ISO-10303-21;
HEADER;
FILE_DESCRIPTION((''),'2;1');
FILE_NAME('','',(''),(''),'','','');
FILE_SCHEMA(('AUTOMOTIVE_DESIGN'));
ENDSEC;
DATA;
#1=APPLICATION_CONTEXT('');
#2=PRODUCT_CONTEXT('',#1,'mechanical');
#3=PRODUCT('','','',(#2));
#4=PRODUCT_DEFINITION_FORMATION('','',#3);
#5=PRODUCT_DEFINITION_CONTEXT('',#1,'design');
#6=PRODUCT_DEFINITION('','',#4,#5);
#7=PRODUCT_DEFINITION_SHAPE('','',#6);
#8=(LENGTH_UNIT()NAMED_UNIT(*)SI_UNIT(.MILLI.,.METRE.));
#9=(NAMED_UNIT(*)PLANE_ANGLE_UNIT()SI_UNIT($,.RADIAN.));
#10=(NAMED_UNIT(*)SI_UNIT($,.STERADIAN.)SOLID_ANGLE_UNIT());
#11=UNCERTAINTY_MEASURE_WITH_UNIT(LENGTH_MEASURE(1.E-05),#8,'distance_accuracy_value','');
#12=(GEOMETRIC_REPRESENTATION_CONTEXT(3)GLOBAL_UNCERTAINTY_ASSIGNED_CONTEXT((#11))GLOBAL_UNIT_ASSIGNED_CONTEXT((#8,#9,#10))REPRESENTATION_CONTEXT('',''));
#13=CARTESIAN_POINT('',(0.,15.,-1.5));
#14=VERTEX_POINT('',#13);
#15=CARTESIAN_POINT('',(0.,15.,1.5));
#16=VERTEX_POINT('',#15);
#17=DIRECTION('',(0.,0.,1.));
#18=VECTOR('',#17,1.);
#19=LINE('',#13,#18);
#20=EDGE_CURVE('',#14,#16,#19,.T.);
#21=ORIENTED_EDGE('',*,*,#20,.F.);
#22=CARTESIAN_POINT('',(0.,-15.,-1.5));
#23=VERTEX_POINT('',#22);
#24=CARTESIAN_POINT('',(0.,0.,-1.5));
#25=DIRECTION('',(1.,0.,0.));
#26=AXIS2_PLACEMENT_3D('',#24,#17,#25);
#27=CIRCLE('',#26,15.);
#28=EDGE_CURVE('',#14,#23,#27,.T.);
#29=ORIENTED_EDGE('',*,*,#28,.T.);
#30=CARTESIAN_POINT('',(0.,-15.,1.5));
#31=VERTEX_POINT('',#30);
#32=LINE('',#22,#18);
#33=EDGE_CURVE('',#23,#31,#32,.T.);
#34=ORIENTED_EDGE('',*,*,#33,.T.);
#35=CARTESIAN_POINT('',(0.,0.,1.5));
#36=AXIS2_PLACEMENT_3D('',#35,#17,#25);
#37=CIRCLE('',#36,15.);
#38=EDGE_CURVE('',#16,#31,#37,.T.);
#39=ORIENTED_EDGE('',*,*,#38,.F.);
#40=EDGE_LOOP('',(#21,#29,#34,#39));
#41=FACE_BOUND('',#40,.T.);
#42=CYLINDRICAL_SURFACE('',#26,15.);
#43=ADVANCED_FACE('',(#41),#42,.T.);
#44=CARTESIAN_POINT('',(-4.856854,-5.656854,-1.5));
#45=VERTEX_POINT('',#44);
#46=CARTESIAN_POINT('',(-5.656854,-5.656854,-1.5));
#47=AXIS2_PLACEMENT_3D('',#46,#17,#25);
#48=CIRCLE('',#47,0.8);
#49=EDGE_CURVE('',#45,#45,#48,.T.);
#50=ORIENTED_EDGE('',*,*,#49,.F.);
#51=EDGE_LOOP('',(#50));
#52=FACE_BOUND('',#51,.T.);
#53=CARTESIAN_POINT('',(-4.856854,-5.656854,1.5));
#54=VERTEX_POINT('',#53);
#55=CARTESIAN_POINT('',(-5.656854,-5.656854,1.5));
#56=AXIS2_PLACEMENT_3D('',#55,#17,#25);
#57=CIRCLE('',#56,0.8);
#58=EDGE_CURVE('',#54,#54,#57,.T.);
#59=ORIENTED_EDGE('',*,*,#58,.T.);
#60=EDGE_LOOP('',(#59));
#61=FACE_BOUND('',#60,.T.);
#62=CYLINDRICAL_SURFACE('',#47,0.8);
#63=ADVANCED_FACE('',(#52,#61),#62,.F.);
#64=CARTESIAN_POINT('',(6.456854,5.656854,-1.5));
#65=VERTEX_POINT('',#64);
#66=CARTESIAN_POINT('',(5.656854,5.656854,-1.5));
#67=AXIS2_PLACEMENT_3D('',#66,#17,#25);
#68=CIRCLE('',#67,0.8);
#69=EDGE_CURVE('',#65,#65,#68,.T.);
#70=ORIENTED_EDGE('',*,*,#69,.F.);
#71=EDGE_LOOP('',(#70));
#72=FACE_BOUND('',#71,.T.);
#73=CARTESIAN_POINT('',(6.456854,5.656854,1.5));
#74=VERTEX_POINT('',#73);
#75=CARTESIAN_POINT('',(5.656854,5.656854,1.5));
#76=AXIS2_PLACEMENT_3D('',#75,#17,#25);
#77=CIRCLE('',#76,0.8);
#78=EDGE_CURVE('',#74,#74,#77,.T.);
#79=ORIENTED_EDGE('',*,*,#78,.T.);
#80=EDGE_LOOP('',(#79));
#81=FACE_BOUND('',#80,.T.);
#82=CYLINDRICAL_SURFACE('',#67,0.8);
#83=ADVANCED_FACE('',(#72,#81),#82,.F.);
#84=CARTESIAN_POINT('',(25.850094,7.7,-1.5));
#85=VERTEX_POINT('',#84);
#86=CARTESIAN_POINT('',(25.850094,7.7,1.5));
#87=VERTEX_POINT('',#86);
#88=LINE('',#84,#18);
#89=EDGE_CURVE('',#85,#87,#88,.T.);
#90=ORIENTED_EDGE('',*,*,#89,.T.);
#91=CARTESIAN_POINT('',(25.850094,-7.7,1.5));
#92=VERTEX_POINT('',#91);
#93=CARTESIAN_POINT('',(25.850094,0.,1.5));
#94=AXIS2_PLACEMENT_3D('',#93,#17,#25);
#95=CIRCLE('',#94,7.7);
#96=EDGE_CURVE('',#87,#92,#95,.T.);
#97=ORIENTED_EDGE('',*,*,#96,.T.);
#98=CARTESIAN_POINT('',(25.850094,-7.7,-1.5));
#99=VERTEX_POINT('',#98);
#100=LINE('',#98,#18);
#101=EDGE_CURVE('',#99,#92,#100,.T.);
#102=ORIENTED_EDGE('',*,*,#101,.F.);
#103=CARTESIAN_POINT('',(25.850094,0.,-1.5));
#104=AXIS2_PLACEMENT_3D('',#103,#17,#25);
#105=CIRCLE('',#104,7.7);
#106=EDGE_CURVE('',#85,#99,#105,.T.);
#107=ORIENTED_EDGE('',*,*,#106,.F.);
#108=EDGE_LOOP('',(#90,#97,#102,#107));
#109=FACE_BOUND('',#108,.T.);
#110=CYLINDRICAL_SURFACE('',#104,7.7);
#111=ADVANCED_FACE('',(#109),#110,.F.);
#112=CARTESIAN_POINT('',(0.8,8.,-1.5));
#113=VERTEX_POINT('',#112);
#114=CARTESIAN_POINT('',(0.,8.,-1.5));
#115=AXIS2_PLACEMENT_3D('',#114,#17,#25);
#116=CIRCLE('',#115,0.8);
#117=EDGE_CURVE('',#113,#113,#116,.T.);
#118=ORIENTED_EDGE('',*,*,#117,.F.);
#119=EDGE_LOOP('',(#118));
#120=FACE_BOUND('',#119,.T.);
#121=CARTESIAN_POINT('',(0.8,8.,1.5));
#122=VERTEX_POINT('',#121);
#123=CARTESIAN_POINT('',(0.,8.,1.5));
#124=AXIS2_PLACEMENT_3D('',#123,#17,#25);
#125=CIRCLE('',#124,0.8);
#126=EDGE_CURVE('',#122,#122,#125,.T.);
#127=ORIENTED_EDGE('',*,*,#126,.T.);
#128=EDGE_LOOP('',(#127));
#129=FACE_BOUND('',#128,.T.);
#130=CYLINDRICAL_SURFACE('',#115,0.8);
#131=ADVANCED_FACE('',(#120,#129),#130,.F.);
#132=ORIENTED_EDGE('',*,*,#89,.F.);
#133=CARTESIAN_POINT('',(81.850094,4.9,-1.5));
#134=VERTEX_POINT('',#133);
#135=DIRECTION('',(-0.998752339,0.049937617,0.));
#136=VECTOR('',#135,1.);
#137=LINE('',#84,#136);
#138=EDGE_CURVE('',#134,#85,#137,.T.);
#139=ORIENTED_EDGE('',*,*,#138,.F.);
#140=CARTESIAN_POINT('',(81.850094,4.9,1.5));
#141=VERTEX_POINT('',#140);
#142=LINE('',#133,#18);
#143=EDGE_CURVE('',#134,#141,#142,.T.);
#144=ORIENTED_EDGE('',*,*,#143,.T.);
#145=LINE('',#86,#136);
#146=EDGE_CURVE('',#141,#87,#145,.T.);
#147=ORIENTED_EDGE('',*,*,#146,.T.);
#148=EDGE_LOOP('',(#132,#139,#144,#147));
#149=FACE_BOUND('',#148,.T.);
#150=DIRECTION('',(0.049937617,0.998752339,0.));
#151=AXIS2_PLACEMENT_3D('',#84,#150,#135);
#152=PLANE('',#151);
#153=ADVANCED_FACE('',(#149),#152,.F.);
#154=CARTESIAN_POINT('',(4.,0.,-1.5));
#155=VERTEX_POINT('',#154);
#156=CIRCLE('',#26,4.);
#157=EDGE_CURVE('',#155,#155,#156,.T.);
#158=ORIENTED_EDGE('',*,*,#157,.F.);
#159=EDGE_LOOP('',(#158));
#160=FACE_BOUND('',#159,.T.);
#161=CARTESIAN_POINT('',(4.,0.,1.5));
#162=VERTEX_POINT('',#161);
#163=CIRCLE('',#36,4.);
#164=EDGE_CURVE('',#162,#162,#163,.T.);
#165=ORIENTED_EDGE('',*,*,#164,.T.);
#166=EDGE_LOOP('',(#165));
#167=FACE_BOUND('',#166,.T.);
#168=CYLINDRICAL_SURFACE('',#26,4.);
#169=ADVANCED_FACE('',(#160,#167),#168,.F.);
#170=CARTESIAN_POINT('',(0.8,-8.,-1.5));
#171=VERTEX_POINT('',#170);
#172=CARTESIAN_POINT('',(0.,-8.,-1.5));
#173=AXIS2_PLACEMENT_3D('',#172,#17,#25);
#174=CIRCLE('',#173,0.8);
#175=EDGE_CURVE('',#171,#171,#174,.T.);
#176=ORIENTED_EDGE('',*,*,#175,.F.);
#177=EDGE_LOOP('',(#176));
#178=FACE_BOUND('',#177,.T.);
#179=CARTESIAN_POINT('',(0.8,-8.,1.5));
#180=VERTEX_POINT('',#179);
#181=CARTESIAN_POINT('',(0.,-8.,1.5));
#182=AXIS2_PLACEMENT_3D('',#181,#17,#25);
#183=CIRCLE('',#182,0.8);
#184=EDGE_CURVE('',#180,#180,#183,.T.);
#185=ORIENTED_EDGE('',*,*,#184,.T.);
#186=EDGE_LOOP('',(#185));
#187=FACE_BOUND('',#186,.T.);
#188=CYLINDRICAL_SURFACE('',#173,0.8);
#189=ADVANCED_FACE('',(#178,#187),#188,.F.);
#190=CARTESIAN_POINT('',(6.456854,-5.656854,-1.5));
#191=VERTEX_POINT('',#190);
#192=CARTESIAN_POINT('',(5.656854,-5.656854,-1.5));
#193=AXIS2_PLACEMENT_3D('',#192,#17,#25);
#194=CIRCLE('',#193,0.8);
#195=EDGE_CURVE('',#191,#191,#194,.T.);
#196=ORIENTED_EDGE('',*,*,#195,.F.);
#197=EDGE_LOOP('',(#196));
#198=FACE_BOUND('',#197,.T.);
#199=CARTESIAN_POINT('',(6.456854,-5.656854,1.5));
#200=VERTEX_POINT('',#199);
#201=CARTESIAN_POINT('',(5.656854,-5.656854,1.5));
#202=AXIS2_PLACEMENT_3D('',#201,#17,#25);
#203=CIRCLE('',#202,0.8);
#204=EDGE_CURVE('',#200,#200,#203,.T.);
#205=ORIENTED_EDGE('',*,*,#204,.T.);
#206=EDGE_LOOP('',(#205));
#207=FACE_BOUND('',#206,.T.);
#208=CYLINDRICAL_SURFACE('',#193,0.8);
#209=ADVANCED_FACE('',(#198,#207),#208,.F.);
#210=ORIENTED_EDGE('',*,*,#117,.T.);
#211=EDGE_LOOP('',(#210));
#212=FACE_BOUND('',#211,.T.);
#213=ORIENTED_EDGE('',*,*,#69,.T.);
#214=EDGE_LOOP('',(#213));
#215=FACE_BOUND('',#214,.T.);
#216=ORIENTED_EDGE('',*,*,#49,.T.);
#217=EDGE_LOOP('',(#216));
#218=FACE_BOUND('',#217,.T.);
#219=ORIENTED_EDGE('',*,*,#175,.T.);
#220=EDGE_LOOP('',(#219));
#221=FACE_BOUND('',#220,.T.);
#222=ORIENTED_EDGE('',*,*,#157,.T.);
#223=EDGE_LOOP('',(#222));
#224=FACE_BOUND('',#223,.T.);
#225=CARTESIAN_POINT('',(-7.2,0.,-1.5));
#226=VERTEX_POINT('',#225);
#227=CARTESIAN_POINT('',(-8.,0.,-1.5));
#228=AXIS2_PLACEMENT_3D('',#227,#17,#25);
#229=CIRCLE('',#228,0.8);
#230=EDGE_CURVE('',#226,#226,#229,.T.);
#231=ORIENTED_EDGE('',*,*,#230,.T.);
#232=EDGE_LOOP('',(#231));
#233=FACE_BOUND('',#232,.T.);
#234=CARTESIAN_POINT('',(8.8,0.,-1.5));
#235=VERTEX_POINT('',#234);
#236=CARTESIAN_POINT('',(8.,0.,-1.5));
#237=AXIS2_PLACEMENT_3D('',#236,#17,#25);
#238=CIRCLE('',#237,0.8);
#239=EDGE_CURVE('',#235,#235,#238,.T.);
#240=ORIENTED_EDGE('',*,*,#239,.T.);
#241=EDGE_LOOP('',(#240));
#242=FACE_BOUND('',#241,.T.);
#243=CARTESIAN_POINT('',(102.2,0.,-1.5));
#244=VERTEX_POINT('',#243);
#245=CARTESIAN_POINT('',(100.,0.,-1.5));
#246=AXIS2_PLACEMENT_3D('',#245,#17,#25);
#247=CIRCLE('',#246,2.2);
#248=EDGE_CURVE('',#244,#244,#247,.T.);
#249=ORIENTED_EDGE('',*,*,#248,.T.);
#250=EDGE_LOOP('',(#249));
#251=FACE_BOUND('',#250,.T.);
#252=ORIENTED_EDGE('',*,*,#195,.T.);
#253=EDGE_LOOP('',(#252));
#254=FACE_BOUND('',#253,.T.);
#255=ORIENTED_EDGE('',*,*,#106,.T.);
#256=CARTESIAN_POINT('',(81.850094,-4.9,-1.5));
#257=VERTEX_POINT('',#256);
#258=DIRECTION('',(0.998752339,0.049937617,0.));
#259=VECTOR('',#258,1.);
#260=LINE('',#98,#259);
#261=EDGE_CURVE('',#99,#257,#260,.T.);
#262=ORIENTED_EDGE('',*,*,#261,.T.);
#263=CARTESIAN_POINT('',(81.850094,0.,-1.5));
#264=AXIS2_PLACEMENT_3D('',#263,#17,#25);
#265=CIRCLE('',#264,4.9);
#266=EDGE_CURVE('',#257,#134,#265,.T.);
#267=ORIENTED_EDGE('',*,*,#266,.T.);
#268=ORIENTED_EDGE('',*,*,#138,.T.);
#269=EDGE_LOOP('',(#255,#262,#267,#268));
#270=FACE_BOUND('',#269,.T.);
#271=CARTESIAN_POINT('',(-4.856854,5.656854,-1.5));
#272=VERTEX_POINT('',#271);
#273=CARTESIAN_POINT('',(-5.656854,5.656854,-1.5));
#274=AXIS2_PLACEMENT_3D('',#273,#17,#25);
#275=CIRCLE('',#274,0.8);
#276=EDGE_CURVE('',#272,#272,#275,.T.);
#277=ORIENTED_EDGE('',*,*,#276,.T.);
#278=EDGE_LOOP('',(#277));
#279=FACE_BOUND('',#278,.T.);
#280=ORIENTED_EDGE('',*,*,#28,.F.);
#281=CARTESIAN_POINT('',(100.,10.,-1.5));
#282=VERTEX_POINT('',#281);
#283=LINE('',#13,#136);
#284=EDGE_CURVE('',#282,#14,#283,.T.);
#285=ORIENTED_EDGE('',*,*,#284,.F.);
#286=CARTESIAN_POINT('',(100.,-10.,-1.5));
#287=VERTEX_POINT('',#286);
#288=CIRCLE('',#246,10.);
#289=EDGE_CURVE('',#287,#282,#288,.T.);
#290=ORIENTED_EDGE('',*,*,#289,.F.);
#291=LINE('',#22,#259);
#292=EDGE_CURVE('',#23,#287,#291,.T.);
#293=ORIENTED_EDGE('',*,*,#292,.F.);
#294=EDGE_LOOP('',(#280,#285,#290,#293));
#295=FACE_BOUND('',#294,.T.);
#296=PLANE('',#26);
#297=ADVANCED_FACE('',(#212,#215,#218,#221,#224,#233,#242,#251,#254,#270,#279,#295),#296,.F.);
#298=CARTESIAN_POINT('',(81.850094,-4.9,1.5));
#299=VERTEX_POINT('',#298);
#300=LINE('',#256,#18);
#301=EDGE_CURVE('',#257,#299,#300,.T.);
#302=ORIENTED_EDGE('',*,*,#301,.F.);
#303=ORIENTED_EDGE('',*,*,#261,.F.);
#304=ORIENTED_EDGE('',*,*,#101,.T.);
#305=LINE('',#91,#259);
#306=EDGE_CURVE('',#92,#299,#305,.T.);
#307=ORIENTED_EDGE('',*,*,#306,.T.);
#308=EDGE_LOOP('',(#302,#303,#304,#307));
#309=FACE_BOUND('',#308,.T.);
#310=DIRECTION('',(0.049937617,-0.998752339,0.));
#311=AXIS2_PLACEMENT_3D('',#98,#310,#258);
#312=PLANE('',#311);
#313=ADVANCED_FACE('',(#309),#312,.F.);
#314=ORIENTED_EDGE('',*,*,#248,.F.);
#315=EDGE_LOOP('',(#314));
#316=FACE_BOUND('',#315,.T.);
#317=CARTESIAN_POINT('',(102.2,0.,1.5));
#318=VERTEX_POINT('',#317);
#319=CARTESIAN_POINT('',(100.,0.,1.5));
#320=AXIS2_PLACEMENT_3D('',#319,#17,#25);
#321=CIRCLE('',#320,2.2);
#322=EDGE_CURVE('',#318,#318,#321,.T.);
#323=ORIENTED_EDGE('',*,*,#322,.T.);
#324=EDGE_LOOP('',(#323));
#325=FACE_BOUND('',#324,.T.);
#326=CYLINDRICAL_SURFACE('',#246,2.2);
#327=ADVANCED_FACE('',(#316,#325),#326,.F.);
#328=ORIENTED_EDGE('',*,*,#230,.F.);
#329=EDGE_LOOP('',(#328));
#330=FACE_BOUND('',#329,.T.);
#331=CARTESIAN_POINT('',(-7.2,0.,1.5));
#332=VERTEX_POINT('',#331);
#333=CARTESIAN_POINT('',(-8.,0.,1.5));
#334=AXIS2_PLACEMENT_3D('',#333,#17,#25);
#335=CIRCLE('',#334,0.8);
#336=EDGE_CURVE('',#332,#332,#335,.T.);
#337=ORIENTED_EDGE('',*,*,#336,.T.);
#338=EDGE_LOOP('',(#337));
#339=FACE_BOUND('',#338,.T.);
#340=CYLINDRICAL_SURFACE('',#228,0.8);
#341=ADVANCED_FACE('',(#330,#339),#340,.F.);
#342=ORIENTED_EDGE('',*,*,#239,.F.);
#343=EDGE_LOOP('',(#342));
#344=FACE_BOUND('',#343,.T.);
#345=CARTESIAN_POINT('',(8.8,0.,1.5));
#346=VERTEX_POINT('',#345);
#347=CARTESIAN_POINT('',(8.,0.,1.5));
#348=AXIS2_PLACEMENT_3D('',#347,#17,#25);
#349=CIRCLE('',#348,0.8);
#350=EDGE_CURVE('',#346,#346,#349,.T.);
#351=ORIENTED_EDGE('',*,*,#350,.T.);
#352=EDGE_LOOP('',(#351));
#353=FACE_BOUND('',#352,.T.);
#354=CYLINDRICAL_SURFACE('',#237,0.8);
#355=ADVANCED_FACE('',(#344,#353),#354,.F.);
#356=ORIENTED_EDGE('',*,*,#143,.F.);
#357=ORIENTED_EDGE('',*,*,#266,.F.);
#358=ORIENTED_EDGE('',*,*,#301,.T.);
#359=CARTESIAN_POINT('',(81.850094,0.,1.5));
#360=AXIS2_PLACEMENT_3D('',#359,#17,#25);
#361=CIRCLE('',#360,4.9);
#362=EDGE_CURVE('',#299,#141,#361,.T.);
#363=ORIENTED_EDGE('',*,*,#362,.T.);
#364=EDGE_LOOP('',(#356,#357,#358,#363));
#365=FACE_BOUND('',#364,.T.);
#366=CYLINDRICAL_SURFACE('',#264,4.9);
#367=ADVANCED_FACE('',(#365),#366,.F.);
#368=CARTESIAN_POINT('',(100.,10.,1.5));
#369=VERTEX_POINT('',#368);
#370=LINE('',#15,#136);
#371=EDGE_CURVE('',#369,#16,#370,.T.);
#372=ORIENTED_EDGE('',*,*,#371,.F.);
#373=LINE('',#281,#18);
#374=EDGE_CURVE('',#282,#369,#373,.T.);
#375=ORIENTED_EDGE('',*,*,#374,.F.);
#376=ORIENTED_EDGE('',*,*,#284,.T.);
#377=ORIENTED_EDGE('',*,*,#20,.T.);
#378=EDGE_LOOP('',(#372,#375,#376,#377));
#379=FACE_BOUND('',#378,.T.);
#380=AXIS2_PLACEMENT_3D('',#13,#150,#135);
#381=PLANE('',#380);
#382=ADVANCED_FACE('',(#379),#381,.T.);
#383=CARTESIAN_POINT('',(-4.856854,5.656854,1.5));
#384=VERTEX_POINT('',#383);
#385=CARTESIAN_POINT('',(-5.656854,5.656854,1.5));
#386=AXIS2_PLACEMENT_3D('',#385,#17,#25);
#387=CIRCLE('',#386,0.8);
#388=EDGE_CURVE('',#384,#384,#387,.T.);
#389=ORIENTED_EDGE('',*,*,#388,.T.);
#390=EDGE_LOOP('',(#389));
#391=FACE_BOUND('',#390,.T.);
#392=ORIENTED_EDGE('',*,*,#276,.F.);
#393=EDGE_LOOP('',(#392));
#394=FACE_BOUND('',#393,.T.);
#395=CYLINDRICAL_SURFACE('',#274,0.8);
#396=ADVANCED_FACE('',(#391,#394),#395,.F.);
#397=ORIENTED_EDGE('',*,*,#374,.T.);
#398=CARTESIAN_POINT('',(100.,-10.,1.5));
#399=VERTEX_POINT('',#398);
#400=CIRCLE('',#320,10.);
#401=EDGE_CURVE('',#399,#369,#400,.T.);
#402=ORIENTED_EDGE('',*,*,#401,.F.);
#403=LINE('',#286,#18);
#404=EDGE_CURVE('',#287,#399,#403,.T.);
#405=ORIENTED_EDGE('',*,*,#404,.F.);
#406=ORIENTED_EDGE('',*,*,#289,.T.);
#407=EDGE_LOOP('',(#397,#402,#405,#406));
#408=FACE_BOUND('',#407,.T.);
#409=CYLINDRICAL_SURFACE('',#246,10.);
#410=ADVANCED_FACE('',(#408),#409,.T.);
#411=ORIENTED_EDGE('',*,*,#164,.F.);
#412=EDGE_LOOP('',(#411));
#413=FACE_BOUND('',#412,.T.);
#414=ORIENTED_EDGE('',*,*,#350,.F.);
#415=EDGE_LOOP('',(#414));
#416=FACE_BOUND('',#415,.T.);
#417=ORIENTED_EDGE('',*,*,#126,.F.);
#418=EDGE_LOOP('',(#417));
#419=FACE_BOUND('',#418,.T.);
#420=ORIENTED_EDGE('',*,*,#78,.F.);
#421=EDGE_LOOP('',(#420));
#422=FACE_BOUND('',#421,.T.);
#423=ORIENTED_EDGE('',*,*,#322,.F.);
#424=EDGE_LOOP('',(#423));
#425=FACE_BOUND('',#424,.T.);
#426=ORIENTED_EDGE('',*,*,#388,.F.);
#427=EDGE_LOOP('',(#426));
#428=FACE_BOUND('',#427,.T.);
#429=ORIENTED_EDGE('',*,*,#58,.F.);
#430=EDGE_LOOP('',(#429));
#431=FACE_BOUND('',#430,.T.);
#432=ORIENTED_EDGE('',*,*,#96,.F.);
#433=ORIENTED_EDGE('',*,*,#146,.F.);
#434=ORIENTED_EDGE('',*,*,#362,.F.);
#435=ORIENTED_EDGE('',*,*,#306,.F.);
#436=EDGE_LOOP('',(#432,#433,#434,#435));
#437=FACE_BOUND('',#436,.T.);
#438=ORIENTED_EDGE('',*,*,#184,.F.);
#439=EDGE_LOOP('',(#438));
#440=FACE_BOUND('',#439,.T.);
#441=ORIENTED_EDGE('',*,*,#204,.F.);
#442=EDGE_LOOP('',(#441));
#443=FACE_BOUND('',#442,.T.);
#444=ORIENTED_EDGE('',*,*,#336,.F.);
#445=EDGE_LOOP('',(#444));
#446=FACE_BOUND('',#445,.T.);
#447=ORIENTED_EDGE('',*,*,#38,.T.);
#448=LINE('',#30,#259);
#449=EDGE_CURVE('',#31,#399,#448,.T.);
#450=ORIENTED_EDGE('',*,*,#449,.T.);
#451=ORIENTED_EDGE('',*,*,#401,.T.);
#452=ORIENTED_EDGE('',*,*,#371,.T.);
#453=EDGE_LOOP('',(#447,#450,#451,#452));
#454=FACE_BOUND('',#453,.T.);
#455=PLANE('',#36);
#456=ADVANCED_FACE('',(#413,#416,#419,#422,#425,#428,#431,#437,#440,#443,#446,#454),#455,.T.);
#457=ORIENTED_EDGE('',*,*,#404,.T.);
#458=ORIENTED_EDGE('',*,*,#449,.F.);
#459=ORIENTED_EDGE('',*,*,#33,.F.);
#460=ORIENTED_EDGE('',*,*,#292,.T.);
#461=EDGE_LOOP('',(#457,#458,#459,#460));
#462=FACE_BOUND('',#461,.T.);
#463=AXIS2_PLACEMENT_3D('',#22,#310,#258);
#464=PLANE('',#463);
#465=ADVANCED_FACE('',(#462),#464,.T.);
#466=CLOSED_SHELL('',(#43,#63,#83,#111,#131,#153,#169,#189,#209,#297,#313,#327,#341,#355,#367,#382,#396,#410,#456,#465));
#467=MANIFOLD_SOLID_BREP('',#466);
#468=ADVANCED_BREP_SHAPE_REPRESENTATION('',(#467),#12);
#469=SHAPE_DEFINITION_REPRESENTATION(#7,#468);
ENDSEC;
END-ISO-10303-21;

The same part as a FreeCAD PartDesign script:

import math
import FreeCAD as App
import Part
import Sketcher
Q = App.Units.Quantity

doc = App.newDocument("Part")
body = doc.addObject("PartDesign::Body", "Body")

sketch1 = body.newObject("Sketcher::SketchObject", "Sketch")
sketch1.AttachmentSupport = (doc.getObject("XY_Plane"), [""])
sketch1.MapMode = "FlatFace"
sketch1.addGeometry([
    Part.LineSegment(App.Vector(0, -15, 0), App.Vector(100, -10, 0)),
    Part.ArcOfCircle(Part.Circle(App.Vector(100, 0, 0), App.Vector(0, 0, 1), 10), math.radians(-90), math.radians(90)),
    Part.LineSegment(App.Vector(100, 10, 0), App.Vector(0, 15, 0)),
    Part.ArcOfCircle(Part.Circle(App.Vector(0, 0, 0), App.Vector(0, 0, 1), 15), math.radians(90), math.radians(270)),
    Part.Circle(App.Vector(0, -8, 0), App.Vector(0, 0, 1), 0.8),
    Part.Circle(App.Vector(-5.7, -5.7, 0), App.Vector(0, 0, 1), 0.8),
    Part.Circle(App.Vector(5.7, -5.7, 0), App.Vector(0, 0, 1), 0.8),
    Part.Circle(App.Vector(-8, 0, 0), App.Vector(0, 0, 1), 0.8),
    Part.Circle(App.Vector(0, 0, 0), App.Vector(0, 0, 1), 4),
    Part.Circle(App.Vector(8, 0, 0), App.Vector(0, 0, 1), 0.8),
    Part.Circle(App.Vector(-5.7, 5.7, 0), App.Vector(0, 0, 1), 0.8),
    Part.Circle(App.Vector(5.7, 5.7, 0), App.Vector(0, 0, 1), 0.8),
    Part.Circle(App.Vector(0, 8, 0), App.Vector(0, 0, 1), 0.8),
    Part.ArcOfCircle(Part.Circle(App.Vector(25.9, 0, 0), App.Vector(0, 0, 1), 7.7), math.radians(90), math.radians(270)),
    Part.LineSegment(App.Vector(25.9, 7.7, 0), App.Vector(81.9, 4.9, 0)),
    Part.ArcOfCircle(Part.Circle(App.Vector(81.9, 0, 0), App.Vector(0, 0, 1), 4.9), math.radians(-90), math.radians(90)),
    Part.LineSegment(App.Vector(81.9, -4.9, 0), App.Vector(25.9, -7.7, 0)),
    Part.Circle(App.Vector(100, 0, 0), App.Vector(0, 0, 1), 2.2),
], False)
sketch1.addConstraint([
    Sketcher.Constraint("Coincident", 0, 2, 1, 1),
    Sketcher.Constraint("Coincident", 1, 2, 2, 1),
    Sketcher.Constraint("Coincident", 2, 2, 3, 1),
    Sketcher.Constraint("Coincident", 3, 2, 0, 1),
    Sketcher.Constraint("Coincident", 13, 1, 14, 1),
    Sketcher.Constraint("Coincident", 14, 2, 15, 2),
    Sketcher.Constraint("Coincident", 15, 1, 16, 1),
    Sketcher.Constraint("Coincident", 16, 2, 13, 2),
    Sketcher.Constraint("Coincident", 3, 3, -1, 1),
    Sketcher.Constraint("Coincident", 8, 3, -1, 1),
    Sketcher.Constraint("Coincident", 17, 3, 1, 3),
    Sketcher.Constraint("Equal", 4, 5),
    Sketcher.Constraint("Equal", 5, 6),
    Sketcher.Constraint("Equal", 6, 7),
    Sketcher.Constraint("Equal", 7, 9),
    Sketcher.Constraint("Equal", 9, 10),
    Sketcher.Constraint("Equal", 10, 11),
    Sketcher.Constraint("Equal", 11, 12),
    Sketcher.Constraint("Symmetric", 7, 3, 9, 3, -1, 1),
    Sketcher.Constraint("Symmetric", 6, 3, 10, 3, -1, 1),
    Sketcher.Constraint("Symmetric", 5, 3, 11, 3, -1, 1),
    Sketcher.Constraint("Symmetric", 4, 3, 12, 3, -1, 1),
    Sketcher.Constraint("Symmetric", 5, 3, 6, 3, -2),
    Sketcher.Constraint("Symmetric", 0, 2, 1, 2, -1),
    Sketcher.Constraint("Symmetric", 14, 2, 15, 1, -1),
    Sketcher.Constraint("Symmetric", 13, 1, 16, 2, -1),
    Sketcher.Constraint("PointOnObject", 4, 3, -2),
    Sketcher.Constraint("PointOnObject", 7, 3, -1),
    Sketcher.Constraint("PointOnObject", 2, 2, -2),
    Sketcher.Constraint("PointOnObject", 3, 2, -2),
    Sketcher.Constraint("Parallel", 2, 14),
    Sketcher.Constraint("Vertical", 17, 3, 0, 2),
    Sketcher.Constraint("Vertical", 15, 3, 14, 2),
    Sketcher.Constraint("Diameter", 8, Q("8 mm")),
    Sketcher.Constraint("Radius", 1, Q("10 mm")),
    Sketcher.Constraint("Radius", 3, Q("15 mm")),
    Sketcher.Constraint("Diameter", 4, Q("1.6 mm")),
    Sketcher.Constraint("Diameter", 17, Q("4.4 mm")),
    Sketcher.Constraint("Radius", 13, Q("7.7 mm")),
    Sketcher.Constraint("Radius", 15, Q("4.9 mm")),
    Sketcher.Constraint("DistanceX", -1, 1, 1, 3, Q("100 mm")),
    Sketcher.Constraint("DistanceY", 4, 3, -1, 1, Q("8 mm")),
    Sketcher.Constraint("DistanceX", 7, 3, -1, 1, Q("8 mm")),
    Sketcher.Constraint("DistanceX", 13, 3, 15, 3, Q("56 mm")),
    Sketcher.Constraint("DistanceX", 5, 3, 6, 3, Q("11.313708 mm")),
    Sketcher.Constraint("DistanceY", 5, 3, 10, 3, Q("11.313708 mm")),
    Sketcher.Constraint("DistanceX", 6, 3, 13, 3, Q("20.193239 mm")),
])
pad1 = body.newObject("PartDesign::Pad", "Pad")
pad1.Profile = sketch1
pad1.Type = "TwoLengths"
pad1.Length = 1.5
pad1.Length2 = 1.5

doc.recompute()
